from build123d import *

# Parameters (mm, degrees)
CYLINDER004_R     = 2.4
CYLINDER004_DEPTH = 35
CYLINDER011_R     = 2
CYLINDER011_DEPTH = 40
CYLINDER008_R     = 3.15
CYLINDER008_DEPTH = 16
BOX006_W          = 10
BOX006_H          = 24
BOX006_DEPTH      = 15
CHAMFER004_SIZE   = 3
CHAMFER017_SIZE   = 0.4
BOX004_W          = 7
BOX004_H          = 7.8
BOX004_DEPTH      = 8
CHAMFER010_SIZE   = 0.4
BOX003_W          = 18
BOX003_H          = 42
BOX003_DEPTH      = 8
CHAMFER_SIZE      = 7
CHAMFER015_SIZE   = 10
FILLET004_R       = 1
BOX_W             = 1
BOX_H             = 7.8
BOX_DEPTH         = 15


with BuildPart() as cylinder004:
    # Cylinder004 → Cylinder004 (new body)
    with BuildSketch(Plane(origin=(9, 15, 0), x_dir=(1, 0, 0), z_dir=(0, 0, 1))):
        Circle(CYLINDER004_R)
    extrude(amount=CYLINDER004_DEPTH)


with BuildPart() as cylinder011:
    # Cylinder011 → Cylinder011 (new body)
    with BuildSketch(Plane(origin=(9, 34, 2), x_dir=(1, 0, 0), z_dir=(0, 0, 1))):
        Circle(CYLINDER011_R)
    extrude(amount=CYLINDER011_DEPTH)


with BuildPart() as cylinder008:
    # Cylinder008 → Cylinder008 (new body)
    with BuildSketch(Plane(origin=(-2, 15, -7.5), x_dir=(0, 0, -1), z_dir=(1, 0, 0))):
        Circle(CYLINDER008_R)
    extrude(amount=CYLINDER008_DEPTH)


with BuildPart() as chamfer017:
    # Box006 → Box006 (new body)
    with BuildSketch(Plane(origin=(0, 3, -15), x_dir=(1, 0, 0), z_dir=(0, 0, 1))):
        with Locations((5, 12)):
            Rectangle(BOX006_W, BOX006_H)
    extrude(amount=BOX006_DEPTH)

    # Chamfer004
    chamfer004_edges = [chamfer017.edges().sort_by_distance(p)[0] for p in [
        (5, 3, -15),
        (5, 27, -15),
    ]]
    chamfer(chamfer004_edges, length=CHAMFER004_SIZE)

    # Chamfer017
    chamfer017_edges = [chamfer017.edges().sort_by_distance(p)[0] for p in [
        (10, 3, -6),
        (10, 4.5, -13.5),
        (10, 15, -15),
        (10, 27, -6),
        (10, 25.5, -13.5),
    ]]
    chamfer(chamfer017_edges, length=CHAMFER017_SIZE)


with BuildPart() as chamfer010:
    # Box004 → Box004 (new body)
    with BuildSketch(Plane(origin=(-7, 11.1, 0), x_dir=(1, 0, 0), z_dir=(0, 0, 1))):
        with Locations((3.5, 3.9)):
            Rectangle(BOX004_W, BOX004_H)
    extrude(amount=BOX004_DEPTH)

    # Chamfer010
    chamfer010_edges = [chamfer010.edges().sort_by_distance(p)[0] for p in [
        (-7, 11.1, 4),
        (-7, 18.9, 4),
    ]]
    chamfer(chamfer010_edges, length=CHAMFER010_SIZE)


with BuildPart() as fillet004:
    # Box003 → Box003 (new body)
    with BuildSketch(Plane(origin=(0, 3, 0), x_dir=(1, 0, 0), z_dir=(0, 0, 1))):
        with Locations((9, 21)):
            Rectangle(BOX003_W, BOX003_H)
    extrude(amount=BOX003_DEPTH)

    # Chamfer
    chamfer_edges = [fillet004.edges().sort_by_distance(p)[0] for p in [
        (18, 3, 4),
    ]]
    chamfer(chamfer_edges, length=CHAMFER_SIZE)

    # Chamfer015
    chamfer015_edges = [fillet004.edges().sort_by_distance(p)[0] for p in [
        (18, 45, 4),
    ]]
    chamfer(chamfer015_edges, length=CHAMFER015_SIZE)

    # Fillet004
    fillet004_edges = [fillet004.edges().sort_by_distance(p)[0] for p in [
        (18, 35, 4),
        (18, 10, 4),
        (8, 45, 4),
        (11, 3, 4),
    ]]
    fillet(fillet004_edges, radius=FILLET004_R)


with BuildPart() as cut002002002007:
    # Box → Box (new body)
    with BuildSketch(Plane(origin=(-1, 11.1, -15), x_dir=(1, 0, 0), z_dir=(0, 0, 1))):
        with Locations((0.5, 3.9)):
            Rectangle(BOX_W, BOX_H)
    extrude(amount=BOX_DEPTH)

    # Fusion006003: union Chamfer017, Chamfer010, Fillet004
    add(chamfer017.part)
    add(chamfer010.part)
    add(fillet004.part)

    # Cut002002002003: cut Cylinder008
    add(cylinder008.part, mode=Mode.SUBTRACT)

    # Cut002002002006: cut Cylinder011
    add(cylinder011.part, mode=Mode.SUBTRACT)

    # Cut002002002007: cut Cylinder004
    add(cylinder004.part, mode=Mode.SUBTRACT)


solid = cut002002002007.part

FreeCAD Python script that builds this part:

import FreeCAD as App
import Part
import Sketcher

V = App.Vector


def edges_at(feature, points):
    """Names of the edges that pass closest to the given points."""
    edges = feature.Shape.Edges
    near = lambda p: min(range(len(edges)), key=lambda i: edges[i].distToShape(Part.Vertex(*p))[0])
    return sorted({f"Edge{near(p) + 1}" for p in points})


def add_polygon(sketch, points):
    """Adds a closed chain of lines whose ends are joined by coincident constraints."""
    first, n = sketch.GeometryCount, len(points)
    for a, b in zip(points, points[1:] + points[:1]):
        sketch.addGeometry(Part.LineSegment(App.Vector(*a, 0), App.Vector(*b, 0)), False)
    for i in range(n):
        sketch.addConstraint(Sketcher.Constraint("Coincident", first + i, 2, first + (i + 1) % n, 1))

doc = App.newDocument("Part")
body = doc.addObject("PartDesign::Body", "Body")

# Sketch on XY plane
sketch1 = body.newObject("Sketcher::SketchObject", "Sketch")
sketch1.AttachmentSupport = (doc.getObject("XY_Plane"), [""])
sketch1.MapMode = "FlatFace"
sketch1.addGeometry(Part.Circle(V(9, 15, 0), V(0, 0, 1), 2.4), False)
sketch1.addConstraint([
    Sketcher.Constraint("Diameter", 0, 4.8),
    Sketcher.Constraint("DistanceX", -1, 1, 0, 3, 9.0),
    Sketcher.Constraint("DistanceY", -1, 1, 0, 3, 15.0),
])
pad1 = body.newObject("PartDesign::Pad", "Pad")
pad1.Profile = sketch1
pad1.Length = 35
body2 = doc.addObject("PartDesign::Body", "Body001")

# Sketch on XY plane
sketch2 = body2.newObject("Sketcher::SketchObject", "Sketch001")
sketch2.AttachmentSupport = (doc.getObject("XY_Plane001"), [""])
sketch2.MapMode = "FlatFace"
sketch2.AttachmentOffset = App.Placement(V(0, 0, 2), App.Rotation())
sketch2.addGeometry(Part.Circle(V(9, 34, 0), V(0, 0, 1), 2), False)
sketch2.addConstraint([
    Sketcher.Constraint("Diameter", 0, 4.0),
    Sketcher.Constraint("DistanceX", -1, 1, 0, 3, 9.0),
    Sketcher.Constraint("DistanceY", -1, 1, 0, 3, 34.0),
])
pad2 = body2.newObject("PartDesign::Pad", "Pad001")
pad2.Profile = sketch2
pad2.Length = 40
body3 = doc.addObject("PartDesign::Body", "Body002")

# Sketch on YZ plane
sketch3 = body3.newObject("Sketcher::SketchObject", "Sketch002")
sketch3.AttachmentSupport = (doc.getObject("YZ_Plane002"), [""])
sketch3.MapMode = "FlatFace"
sketch3.AttachmentOffset = App.Placement(V(0, 0, -2), App.Rotation())
sketch3.addGeometry(Part.Circle(V(15, -7.5, 0), V(0, 0, 1), 3.1), False)
sketch3.addConstraint([
    Sketcher.Constraint("Diameter", 0, 6.3),
    Sketcher.Constraint("DistanceX", -1, 1, 0, 3, 15.0),
    Sketcher.Constraint("DistanceY", 0, 3, -1, 1, 7.5),
])
pad3 = body3.newObject("PartDesign::Pad", "Pad002")
pad3.Profile = sketch3
pad3.Length = 16
body4 = doc.addObject("PartDesign::Body", "Body003")

# Sketch on XY plane
sketch4 = body4.newObject("Sketcher::SketchObject", "Sketch003")
sketch4.AttachmentSupport = (doc.getObject("XY_Plane003"), [""])
sketch4.MapMode = "FlatFace"
sketch4.AttachmentOffset = App.Placement(V(0, 0, -15), App.Rotation())
add_polygon(sketch4, [(0, 27), (0, 3), (10, 3), (10, 27)])  # lines 0-3
sketch4.addConstraint([
    Sketcher.Constraint("Vertical", 0),
    Sketcher.Constraint("Horizontal", 1),
    Sketcher.Constraint("Vertical", 2),
    Sketcher.Constraint("Horizontal", 3),
    Sketcher.Constraint("PointOnObject", 0, 2, -2),
    Sketcher.Constraint("DistanceX", 1, 1, 1, 2, 10.0),
    Sketcher.Constraint("DistanceY", 0, 2, 0, 1, 24.0),
    Sketcher.Constraint("DistanceY", -1, 1, 0, 2, 3.0),
])
pad4 = body4.newObject("PartDesign::Pad", "Pad003")
pad4.Profile = sketch4
pad4.Length = 15
doc.recompute()

chamfer = body4.newObject("PartDesign::Chamfer", "Chamfer")
chamfer.Base = (pad4, edges_at(pad4, [(5, 3, -15), (5, 27, -15)]))
chamfer.Size = 3
doc.recompute()

chamfer2 = body4.newObject("PartDesign::Chamfer", "Chamfer001")
chamfer2.Base = (chamfer, edges_at(chamfer, [
    (10, 3, -6),
    (10, 4.5, -13.5),
    (10, 15, -15),
    (10, 27, -6),
    (10, 25.5, -13.5),
]))
chamfer2.Size = 0.4
body5 = doc.addObject("PartDesign::Body", "Body004")

# Sketch on XY plane
sketch5 = body5.newObject("Sketcher::SketchObject", "Sketch004")
sketch5.AttachmentSupport = (doc.getObject("XY_Plane004"), [""])
sketch5.MapMode = "FlatFace"
add_polygon(sketch5, [(-7, 19), (-7, 11), (0, 11), (0, 19)])  # lines 0-3
sketch5.addConstraint([
    Sketcher.Constraint("Vertical", 0),
    Sketcher.Constraint("Horizontal", 1),
    Sketcher.Constraint("Vertical", 2),
    Sketcher.Constraint("Horizontal", 3),
    Sketcher.Constraint("PointOnObject", 1, 2, -2),
    Sketcher.Constraint("DistanceX", 1, 1, 1, 2, 7.0),
    Sketcher.Constraint("DistanceY", 0, 2, 0, 1, 7.8),
    Sketcher.Constraint("DistanceY", -1, 1, 0, 2, 11.1),
])
pad5 = body5.newObject("PartDesign::Pad", "Pad004")
pad5.Profile = sketch5
pad5.Length = 8
doc.recompute()

chamfer3 = body5.newObject("PartDesign::Chamfer", "Chamfer002")
chamfer3.Base = (pad5, edges_at(pad5, [(-7, 11.1, 4), (-7, 18.9, 4)]))
chamfer3.Size = 0.4
body6 = doc.addObject("PartDesign::Body", "Body005")

# Sketch on XY plane
sketch6 = body6.newObject("Sketcher::SketchObject", "Sketch005")
sketch6.AttachmentSupport = (doc.getObject("XY_Plane005"), [""])
sketch6.MapMode = "FlatFace"
add_polygon(sketch6, [(0, 45), (0, 3), (18, 3), (18, 45)])  # lines 0-3
sketch6.addConstraint([
    Sketcher.Constraint("Vertical", 0),
    Sketcher.Constraint("Horizontal", 1),
    Sketcher.Constraint("Vertical", 2),
    Sketcher.Constraint("Horizontal", 3),
    Sketcher.Constraint("PointOnObject", 0, 2, -2),
    Sketcher.Constraint("DistanceX", 1, 1, 1, 2, 18.0),
    Sketcher.Constraint("DistanceY", 0, 2, 0, 1, 42.0),
    Sketcher.Constraint("DistanceY", -1, 1, 0, 2, 3.0),
])
pad6 = body6.newObject("PartDesign::Pad", "Pad005")
pad6.Profile = sketch6
pad6.Length = 8
doc.recompute()

chamfer4 = body6.newObject("PartDesign::Chamfer", "Chamfer003")
chamfer4.Base = (pad6, edges_at(pad6, [(18, 3, 4)]))
chamfer4.Size = 7
doc.recompute()

chamfer5 = body6.newObject("PartDesign::Chamfer", "Chamfer004")
chamfer5.Base = (chamfer4, edges_at(chamfer4, [(18, 45, 4)]))
chamfer5.Size = 10
doc.recompute()

fillet = body6.newObject("PartDesign::Fillet", "Fillet")
fillet.Base = (chamfer5, edges_at(chamfer5, [
    (18, 35, 4),
    (18, 10, 4),
    (8, 45, 4),
    (11, 3, 4),
]))
fillet.Radius = 1
body7 = doc.addObject("PartDesign::Body", "Body006")

# Sketch on XY plane
sketch7 = body7.newObject("Sketcher::SketchObject", "Sketch006")
sketch7.AttachmentSupport = (doc.getObject("XY_Plane006"), [""])
sketch7.MapMode = "FlatFace"
sketch7.AttachmentOffset = App.Placement(V(0, 0, -15), App.Rotation())
add_polygon(sketch7, [(-1, 18.9), (-1, 11.1), (0, 11.1), (0, 18.9)])  # lines 0-3
sketch7.addConstraint([
    Sketcher.Constraint("Vertical", 0),
    Sketcher.Constraint("Horizontal", 1),
    Sketcher.Constraint("Vertical", 2),
    Sketcher.Constraint("Horizontal", 3),
    Sketcher.Constraint("PointOnObject", 1, 2, -2),
    Sketcher.Constraint("DistanceX", 1, 1, 1, 2, 1.0),
    Sketcher.Constraint("DistanceY", 0, 2, 0, 1, 7.8),
    Sketcher.Constraint("DistanceY", -1, 1, 0, 2, 11.1),
])
pad7 = body7.newObject("PartDesign::Pad", "Pad006")
pad7.Profile = sketch7
pad7.Length = 15
doc.recompute()

boolean = body7.newObject("PartDesign::Boolean", "Boolean")
boolean.Type = "Fuse"
boolean.addObjects([body4])
doc.recompute()

boolean2 = body7.newObject("PartDesign::Boolean", "Boolean001")
boolean2.Type = "Fuse"
boolean2.addObjects([body5])
doc.recompute()

boolean3 = body7.newObject("PartDesign::Boolean", "Boolean002")
boolean3.Type = "Fuse"
boolean3.addObjects([body6])
doc.recompute()

boolean4 = body7.newObject("PartDesign::Boolean", "Boolean003")
boolean4.Type = "Cut"
boolean4.addObjects([body3])
doc.recompute()

boolean5 = body7.newObject("PartDesign::Boolean", "Boolean004")
boolean5.Type = "Cut"
boolean5.addObjects([body2])
doc.recompute()

boolean6 = body7.newObject("PartDesign::Boolean", "Boolean005")
boolean6.Type = "Cut"
boolean6.addObjects([body])

doc.recompute()
